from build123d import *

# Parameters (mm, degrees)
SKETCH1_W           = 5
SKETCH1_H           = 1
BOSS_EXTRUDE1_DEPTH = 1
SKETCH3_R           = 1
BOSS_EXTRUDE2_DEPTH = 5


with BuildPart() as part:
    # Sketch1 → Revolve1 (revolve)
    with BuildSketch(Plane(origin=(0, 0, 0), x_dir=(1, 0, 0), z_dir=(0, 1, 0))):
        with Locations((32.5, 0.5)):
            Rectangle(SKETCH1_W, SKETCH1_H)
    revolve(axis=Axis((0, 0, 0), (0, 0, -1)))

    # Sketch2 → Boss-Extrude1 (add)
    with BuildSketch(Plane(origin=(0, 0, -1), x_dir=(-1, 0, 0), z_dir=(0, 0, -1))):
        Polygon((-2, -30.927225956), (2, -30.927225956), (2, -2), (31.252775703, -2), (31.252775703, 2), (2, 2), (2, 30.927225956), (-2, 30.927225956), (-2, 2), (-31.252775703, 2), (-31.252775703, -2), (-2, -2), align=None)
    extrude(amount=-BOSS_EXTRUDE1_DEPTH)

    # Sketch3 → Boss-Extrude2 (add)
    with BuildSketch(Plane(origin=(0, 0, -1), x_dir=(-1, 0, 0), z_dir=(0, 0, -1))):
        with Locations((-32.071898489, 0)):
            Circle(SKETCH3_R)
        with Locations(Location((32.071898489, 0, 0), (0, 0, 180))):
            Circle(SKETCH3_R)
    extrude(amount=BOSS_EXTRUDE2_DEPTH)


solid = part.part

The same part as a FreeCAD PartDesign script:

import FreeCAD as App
import Part
import Sketcher

V = App.Vector

doc = App.newDocument("Part")
body = doc.addObject("PartDesign::Body", "Body")

# Sketch on XZ plane
sketch1 = body.newObject("Sketcher::SketchObject", "Sketch")
sketch1.AttachmentSupport = (doc.getObject("XZ_Plane"), [""])
sketch1.MapMode = "FlatFace"
sketch1.addGeometry(Part.LineSegment(V(30, -1, 0), V(30, 0, 0)), False)
sketch1.addGeometry(Part.LineSegment(V(30, 0, 0), V(35, 0, 0)), False)
sketch1.addGeometry(Part.LineSegment(V(35, 0, 0), V(35, -1, 0)), False)
sketch1.addGeometry(Part.LineSegment(V(35, -1, 0), V(30, -1, 0)), False)
sketch1.addConstraint(Sketcher.Constraint("Coincident", 0, 2, 1, 1))
sketch1.addConstraint(Sketcher.Constraint("Coincident", 1, 2, 2, 1))
sketch1.addConstraint(Sketcher.Constraint("Coincident", 2, 2, 3, 1))
sketch1.addConstraint(Sketcher.Constraint("Coincident", 3, 2, 0, 1))
sketch1.addConstraint(Sketcher.Constraint("Vertical", 0))
sketch1.addConstraint(Sketcher.Constraint("Horizontal", 1))
sketch1.addConstraint(Sketcher.Constraint("Vertical", 2))
sketch1.addConstraint(Sketcher.Constraint("Horizontal", 3))
sketch1.addConstraint(Sketcher.Constraint("PointOnObject", 0, 2, -1))
sketch1.addConstraint(Sketcher.Constraint("DistanceX", 1, 1, 1, 2, 5.0))
sketch1.addConstraint(Sketcher.Constraint("DistanceY", 0, 1, 0, 2, 1.0))
sketch1.addConstraint(Sketcher.Constraint("DistanceX", -1, 1, 0, 2, 30.0))
revolution = body.newObject("PartDesign::Revolution", "Revolution")
revolution.Profile = sketch1
revolution.ReferenceAxis = (sketch1, ["V_Axis"])
revolution.Angle = 360

# Sketch on XY plane
sketch2 = body.newObject("Sketcher::SketchObject", "Sketch001")
sketch2.AttachmentSupport = (doc.getObject("XY_Plane"), [""])
sketch2.MapMode = "FlatFace"
sketch2.AttachmentOffset = App.Placement(V(0, 0, -1), App.Rotation())
sketch2.addGeometry(Part.LineSegment(V(2, -30.927226, 0), V(-2, -30.927226, 0)), False)
sketch2.addGeometry(Part.LineSegment(V(-2, -30.927226, 0), V(-2, -2, 0)), False)
sketch2.addGeometry(Part.LineSegment(V(-2, -2, 0), V(-31.252776, -2, 0)), False)
sketch2.addGeometry(Part.LineSegment(V(-31.252776, -2, 0), V(-31.252776, 2, 0)), False)
sketch2.addGeometry(Part.LineSegment(V(-31.252776, 2, 0), V(-2, 2, 0)), False)
sketch2.addGeometry(Part.LineSegment(V(-2, 2, 0), V(-2, 30.927226, 0)), False)
sketch2.addGeometry(Part.LineSegment(V(-2, 30.927226, 0), V(2, 30.927226, 0)), False)
sketch2.addGeometry(Part.LineSegment(V(2, 30.927226, 0), V(2, 2, 0)), False)
sketch2.addGeometry(Part.LineSegment(V(2, 2, 0), V(31.252776, 2, 0)), False)
sketch2.addGeometry(Part.LineSegment(V(31.252776, 2, 0), V(31.252776, -2, 0)), False)
sketch2.addGeometry(Part.LineSegment(V(31.252776, -2, 0), V(2, -2, 0)), False)
sketch2.addGeometry(Part.LineSegment(V(2, -2, 0), V(2, -30.927226, 0)), False)
sketch2.addConstraint(Sketcher.Constraint("Coincident", 0, 2, 1, 1))
sketch2.addConstraint(Sketcher.Constraint("Coincident", 1, 2, 2, 1))
sketch2.addConstraint(Sketcher.Constraint("Coincident", 2, 2, 3, 1))
sketch2.addConstraint(Sketcher.Constraint("Coincident", 3, 2, 4, 1))
sketch2.addConstraint(Sketcher.Constraint("Coincident", 4, 2, 5, 1))
sketch2.addConstraint(Sketcher.Constraint("Coincident", 5, 2, 6, 1))
sketch2.addConstraint(Sketcher.Constraint("Coincident", 6, 2, 7, 1))
sketch2.addConstraint(Sketcher.Constraint("Coincident", 7, 2, 8, 1))
sketch2.addConstraint(Sketcher.Constraint("Coincident", 8, 2, 9, 1))
sketch2.addConstraint(Sketcher.Constraint("Coincident", 9, 2, 10, 1))
sketch2.addConstraint(Sketcher.Constraint("Coincident", 10, 2, 11, 1))
sketch2.addConstraint(Sketcher.Constraint("Coincident", 11, 2, 0, 1))
sketch2.addConstraint(Sketcher.Constraint("Horizontal", 0))
sketch2.addConstraint(Sketcher.Constraint("Vertical", 1))
sketch2.addConstraint(Sketcher.Constraint("Horizontal", 2))
sketch2.addConstraint(Sketcher.Constraint("Vertical", 3))
sketch2.addConstraint(Sketcher.Constraint("Horizontal", 4))
sketch2.addConstraint(Sketcher.Constraint("Vertical", 5))
sketch2.addConstraint(Sketcher.Constraint("Horizontal", 6))
sketch2.addConstraint(Sketcher.Constraint("Vertical", 7))
sketch2.addConstraint(Sketcher.Constraint("Horizontal", 8))
sketch2.addConstraint(Sketcher.Constraint("Vertical", 9))
sketch2.addConstraint(Sketcher.Constraint("Horizontal", 10))
sketch2.addConstraint(Sketcher.Constraint("Vertical", 11))
sketch2.addConstraint(Sketcher.Constraint("Symmetric", 0, 2, 6, 2, -1, 1))
sketch2.addConstraint(Sketcher.Constraint("Symmetric", 2, 2, 8, 2, -1, 1))
sketch2.addConstraint(Sketcher.Constraint("Symmetric", 4, 2, 10, 2, -1, 1))
sketch2.addConstraint(Sketcher.Constraint("Symmetric", 4, 2, 7, 2, -2))
sketch2.addConstraint(Sketcher.Constraint("Equal", 6, 3))
sketch2.addConstraint(Sketcher.Constraint("DistanceX", 0, 2, 0, 1, 4.0))
sketch2.addConstraint(Sketcher.Constraint("DistanceX", 2, 2, 2, 1, 29.252776))
sketch2.addConstraint(Sketcher.Constraint("DistanceY", 1, 1, 1, 2, 28.927226))
pad1 = body.newObject("PartDesign::Pad", "Pad")
pad1.Profile = sketch2
pad1.Length = 1

# Sketch on XY plane
sketch3 = body.newObject("Sketcher::SketchObject", "Sketch002")
sketch3.AttachmentSupport = (doc.getObject("XY_Plane"), [""])
sketch3.MapMode = "FlatFace"
sketch3.AttachmentOffset = App.Placement(V(0, 0, -1), App.Rotation())
sketch3.addGeometry(Part.Circle(V(32.071898, 0, 0), V(0, 0, 1), 1), False)
sketch3.addGeometry(Part.Circle(V(-32.071898, 0, 0), V(0, 0, 1), 1), False)
sketch3.addConstraint(Sketcher.Constraint("Equal", 0, 1))
sketch3.addConstraint(Sketcher.Constraint("Symmetric", 0, 3, 1, 3, -1, 1))
sketch3.addConstraint(Sketcher.Constraint("PointOnObject", 0, 3, -1))
sketch3.addConstraint(Sketcher.Constraint("Diameter", 0, 2.0))
sketch3.addConstraint(Sketcher.Constraint("DistanceX", -1, 1, 0, 3, 32.071898))
pad2 = body.newObject("PartDesign::Pad", "Pad001")
pad2.Profile = sketch3
pad2.Length = 5
pad2.Reversed = True

doc.recompute()
